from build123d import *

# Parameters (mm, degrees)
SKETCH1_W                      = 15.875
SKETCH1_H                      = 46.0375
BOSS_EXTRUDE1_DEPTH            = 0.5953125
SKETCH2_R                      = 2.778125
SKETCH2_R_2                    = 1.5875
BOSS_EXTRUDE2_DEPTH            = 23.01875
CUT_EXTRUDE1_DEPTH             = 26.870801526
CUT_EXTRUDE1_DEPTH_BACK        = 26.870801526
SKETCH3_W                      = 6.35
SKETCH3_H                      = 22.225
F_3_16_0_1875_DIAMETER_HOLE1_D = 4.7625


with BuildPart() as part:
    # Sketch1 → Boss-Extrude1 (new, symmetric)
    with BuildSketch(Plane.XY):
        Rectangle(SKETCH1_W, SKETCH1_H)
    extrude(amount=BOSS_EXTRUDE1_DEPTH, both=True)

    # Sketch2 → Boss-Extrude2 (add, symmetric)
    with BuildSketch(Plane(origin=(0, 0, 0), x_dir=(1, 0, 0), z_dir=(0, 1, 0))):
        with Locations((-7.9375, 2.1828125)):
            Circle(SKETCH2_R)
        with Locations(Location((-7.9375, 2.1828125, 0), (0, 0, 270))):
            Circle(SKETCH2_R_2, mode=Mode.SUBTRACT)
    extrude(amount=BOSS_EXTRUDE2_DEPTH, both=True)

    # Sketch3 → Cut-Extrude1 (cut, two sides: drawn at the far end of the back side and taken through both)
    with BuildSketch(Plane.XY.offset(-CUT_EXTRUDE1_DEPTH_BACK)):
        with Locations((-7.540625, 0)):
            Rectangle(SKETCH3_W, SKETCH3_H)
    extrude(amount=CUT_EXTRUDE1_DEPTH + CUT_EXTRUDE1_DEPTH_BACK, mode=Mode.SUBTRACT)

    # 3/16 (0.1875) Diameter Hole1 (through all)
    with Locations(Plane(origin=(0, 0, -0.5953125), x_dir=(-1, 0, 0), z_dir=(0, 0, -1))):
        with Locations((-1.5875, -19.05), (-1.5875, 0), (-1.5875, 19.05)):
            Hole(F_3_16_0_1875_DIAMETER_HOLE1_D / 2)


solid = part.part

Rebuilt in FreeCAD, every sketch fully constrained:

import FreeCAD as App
import Part
import Sketcher

V = App.Vector
Q = App.Units.Quantity


def add_polygon(sketch, points):
    """Adds a closed chain of lines whose ends are joined by coincident constraints."""
    first, n = sketch.GeometryCount, len(points)
    for a, b in zip(points, points[1:] + points[:1]):
        sketch.addGeometry(Part.LineSegment(App.Vector(*a, 0), App.Vector(*b, 0)), False)
    for i in range(n):
        sketch.addConstraint(Sketcher.Constraint("Coincident", first + i, 2, first + (i + 1) % n, 1))

doc = App.newDocument("Part")
body = doc.addObject("PartDesign::Body", "Body")

sketch1 = doc.addObject("Sketcher::SketchObject", "Sketch")
body.addObject(sketch1)
sketch1.AttachmentSupport = (doc.XY_Plane, [""])
sketch1.MapMode = "FlatFace"
add_polygon(sketch1, [(-8, 23), (-8, -23), (8, -23), (8, 23)])
sketch1.addConstraint([
    Sketcher.Constraint("Vertical", 0),
    Sketcher.Constraint("Horizontal", 1),
    Sketcher.Constraint("Vertical", 2),
    Sketcher.Constraint("Horizontal", 3),
    Sketcher.Constraint("Symmetric", 0, 2, 2, 2, -1, 1),
    Sketcher.Constraint("DistanceX", 1, 1, 1, 2, Q("0.625 in")),
    Sketcher.Constraint("DistanceY", 0, 2, 0, 1, Q("1.8125 in")),
])
pad1 = doc.addObject("PartDesign::Pad", "Pad")
body.addObject(pad1)
pad1.Profile = sketch1
pad1.Length = Q("0.046875 in")
pad1.Midplane = True

sketch2 = doc.addObject("Sketcher::SketchObject", "Sketch001")
body.addObject(sketch2)
sketch2.AttachmentSupport = (doc.XZ_Plane, [""])
sketch2.MapMode = "FlatFace"
sketch2.addGeometry([
    Part.Circle(V(-7.9, -2.2, 0), V(0, 0, 1), 2.8),
    Part.Circle(V(-7.9, -2.2, 0), V(0, 0, 1), 1.6),
], False)
sketch2.addConstraint([
    Sketcher.Constraint("Coincident", 1, 3, 0, 3),
    Sketcher.Constraint("Diameter", 0, Q("0.21875 in")),
    Sketcher.Constraint("Diameter", 1, Q("0.125 in")),
    Sketcher.Constraint("DistanceX", 0, 3, -1, 1, Q("0.3125 in")),
    Sketcher.Constraint("DistanceY", 0, 3, -1, 1, 2.182812),
])
pad2 = doc.addObject("PartDesign::Pad", "Pad001")
body.addObject(pad2)
pad2.Profile = sketch2
pad2.Length = Q("1.8125 in")
pad2.Midplane = True

sketch3 = doc.addObject("Sketcher::SketchObject", "Sketch002")
body.addObject(sketch3)
sketch3.AttachmentSupport = (doc.XY_Plane, [""])
sketch3.MapMode = "FlatFace"
add_polygon(sketch3, [(-11, 11), (-11, -11), (-4, -11), (-4, 11)])
sketch3.addConstraint([
    Sketcher.Constraint("Vertical", 0),
    Sketcher.Constraint("Horizontal", 1),
    Sketcher.Constraint("Vertical", 2),
    Sketcher.Constraint("Horizontal", 3),
    Sketcher.Constraint("DistanceX", 1, 1, 1, 2, Q("0.25 in")),
    Sketcher.Constraint("DistanceY", 0, 2, 0, 1, Q("0.875 in")),
    Sketcher.Constraint("DistanceX", 0, 2, -1, 1, Q("0.421875 in")),
    Sketcher.Constraint("DistanceY", 0, 2, -1, 1, Q("0.4375 in")),
])
pocket1 = doc.addObject("PartDesign::Pocket", "Pocket")
body.addObject(pocket1)
pocket1.Profile = sketch3
pocket1.Type = "ThroughAll"
pocket1.Midplane = True

sketch4 = doc.addObject("Sketcher::SketchObject", "Sketch003")
body.addObject(sketch4)
sketch4.AttachmentSupport = (doc.XY_Plane, [""])
sketch4.MapMode = "FlatFace"
sketch4.AttachmentOffset = App.Placement(V(0, 0, -0.595313), App.Rotation())
sketch4.addGeometry([
    Part.Circle(V(1.6, -19.1, 0), V(0, 0, 1), 2.4),
    Part.Circle(V(1.6, 0, 0), V(0, 0, 1), 2.4),
    Part.Circle(V(1.6, 19.1, 0), V(0, 0, 1), 2.4),
], False)
sketch4.addConstraint([
    Sketcher.Constraint("Equal", 0, 1),
    Sketcher.Constraint("Equal", 1, 2),
    Sketcher.Constraint("Symmetric", 0, 3, 2, 3, -1),
    Sketcher.Constraint("PointOnObject", 1, 3, -1),
    Sketcher.Constraint("Vertical", 0, 3, 1, 3),
    Sketcher.Constraint("Diameter", 0, Q("0.1875 in")),
    Sketcher.Constraint("DistanceY", 0, 3, 2, 3, Q("1.5 in")),
    Sketcher.Constraint("DistanceX", -1, 1, 0, 3, Q("0.0625 in")),
])
doc.recompute()
hole = doc.addObject("PartDesign::Hole", "Hole")
body.addObject(hole)
hole.Profile = sketch4
hole.ThreadType = "None"
hole.Diameter = Q("0.1875 in")
hole.DepthType = "ThroughAll"
hole.Reversed = True

doc.recompute()
